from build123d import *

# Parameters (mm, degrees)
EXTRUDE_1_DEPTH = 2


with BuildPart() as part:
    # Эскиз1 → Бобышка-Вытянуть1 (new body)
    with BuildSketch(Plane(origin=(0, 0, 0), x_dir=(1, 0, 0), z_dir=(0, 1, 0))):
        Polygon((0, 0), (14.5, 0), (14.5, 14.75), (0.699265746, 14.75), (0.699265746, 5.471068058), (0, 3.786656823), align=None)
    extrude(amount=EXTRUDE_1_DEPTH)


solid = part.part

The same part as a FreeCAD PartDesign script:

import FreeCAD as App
import Part
import Sketcher
from FreeCAD import Vector
Q = App.Units.Quantity


def add_polygon(sketch, points):
    """Adds a closed chain of lines whose ends are joined by coincident constraints."""
    first, n = sketch.GeometryCount, len(points)
    for a, b in zip(points, points[1:] + points[:1]):
        sketch.addGeometry(Part.LineSegment(App.Vector(*a, 0), App.Vector(*b, 0)), False)
    for i in range(n):
        sketch.addConstraint(Sketcher.Constraint("Coincident", first + i, 2, first + (i + 1) % n, 1))

doc = App.newDocument("Part")
params = doc.addObject("Spreadsheet::Sheet", "Params")
for row, (alias, value) in enumerate([
    ("sketch1_width", "14.5 mm"),
    ("sketch1_height", "14.75 mm"),
    ("pad1_length", "2 mm"),
], start=1):
    params.set(f"A{row}", alias)
    params.set(f"B{row}", "=" + value)
    params.setAlias(f"B{row}", alias)

body = doc.addObject("PartDesign::Body", "Body")

# Sketch on XZ plane
sketch1 = body.newObject("Sketcher::SketchObject", "Sketch")
sketch1.AttachmentSupport = (doc.getObject("XZ_Plane"), [""])
sketch1.MapMode = "FlatFace"
add_polygon(sketch1, [(0, 0), (14.5, 0), (14.5, -14.8), (0.7, -14.8), (0.7, -5.5), (0, -3.8)])  # lines 0-5
sketch1.addConstraint(Sketcher.Constraint("Horizontal", 0))
sketch1.addConstraint(Sketcher.Constraint("Vertical", 1))
sketch1.addConstraint(Sketcher.Constraint("Horizontal", 2))
sketch1.addConstraint(Sketcher.Constraint("Vertical", 3))
sketch1.addConstraint(Sketcher.Constraint("Vertical", 5))
sketch1.addConstraint(Sketcher.Constraint("Coincident", 5, 2, -1, 1))
sketch1.addConstraint(Sketcher.Constraint("DistanceX", 0, 1, 0, 2, Q("14.5 mm")))
sketch1.addConstraint(Sketcher.Constraint("DistanceY", 1, 2, 1, 1, Q("14.75 mm")))
sketch1.addConstraint(Sketcher.Constraint("DistanceY", 3, 1, 3, 2, Q("9.278932 mm")))
sketch1.addConstraint(Sketcher.Constraint("Distance", 4, Q("1.823791 mm")))
sketch1.addConstraint(Sketcher.Constraint("DistanceX", 2, 2, 2, 1, Q("13.800734 mm")))
sketch1.setExpression("Constraints[12]", "Params.sketch1_width")
sketch1.setExpression("Constraints[13]", "Params.sketch1_height")
pad1 = body.newObject("PartDesign::Pad", "Pad")
pad1.Profile = sketch1
pad1.setExpression("Length", "Params.pad1_length")
pad1.Reversed = True

doc.recompute()
